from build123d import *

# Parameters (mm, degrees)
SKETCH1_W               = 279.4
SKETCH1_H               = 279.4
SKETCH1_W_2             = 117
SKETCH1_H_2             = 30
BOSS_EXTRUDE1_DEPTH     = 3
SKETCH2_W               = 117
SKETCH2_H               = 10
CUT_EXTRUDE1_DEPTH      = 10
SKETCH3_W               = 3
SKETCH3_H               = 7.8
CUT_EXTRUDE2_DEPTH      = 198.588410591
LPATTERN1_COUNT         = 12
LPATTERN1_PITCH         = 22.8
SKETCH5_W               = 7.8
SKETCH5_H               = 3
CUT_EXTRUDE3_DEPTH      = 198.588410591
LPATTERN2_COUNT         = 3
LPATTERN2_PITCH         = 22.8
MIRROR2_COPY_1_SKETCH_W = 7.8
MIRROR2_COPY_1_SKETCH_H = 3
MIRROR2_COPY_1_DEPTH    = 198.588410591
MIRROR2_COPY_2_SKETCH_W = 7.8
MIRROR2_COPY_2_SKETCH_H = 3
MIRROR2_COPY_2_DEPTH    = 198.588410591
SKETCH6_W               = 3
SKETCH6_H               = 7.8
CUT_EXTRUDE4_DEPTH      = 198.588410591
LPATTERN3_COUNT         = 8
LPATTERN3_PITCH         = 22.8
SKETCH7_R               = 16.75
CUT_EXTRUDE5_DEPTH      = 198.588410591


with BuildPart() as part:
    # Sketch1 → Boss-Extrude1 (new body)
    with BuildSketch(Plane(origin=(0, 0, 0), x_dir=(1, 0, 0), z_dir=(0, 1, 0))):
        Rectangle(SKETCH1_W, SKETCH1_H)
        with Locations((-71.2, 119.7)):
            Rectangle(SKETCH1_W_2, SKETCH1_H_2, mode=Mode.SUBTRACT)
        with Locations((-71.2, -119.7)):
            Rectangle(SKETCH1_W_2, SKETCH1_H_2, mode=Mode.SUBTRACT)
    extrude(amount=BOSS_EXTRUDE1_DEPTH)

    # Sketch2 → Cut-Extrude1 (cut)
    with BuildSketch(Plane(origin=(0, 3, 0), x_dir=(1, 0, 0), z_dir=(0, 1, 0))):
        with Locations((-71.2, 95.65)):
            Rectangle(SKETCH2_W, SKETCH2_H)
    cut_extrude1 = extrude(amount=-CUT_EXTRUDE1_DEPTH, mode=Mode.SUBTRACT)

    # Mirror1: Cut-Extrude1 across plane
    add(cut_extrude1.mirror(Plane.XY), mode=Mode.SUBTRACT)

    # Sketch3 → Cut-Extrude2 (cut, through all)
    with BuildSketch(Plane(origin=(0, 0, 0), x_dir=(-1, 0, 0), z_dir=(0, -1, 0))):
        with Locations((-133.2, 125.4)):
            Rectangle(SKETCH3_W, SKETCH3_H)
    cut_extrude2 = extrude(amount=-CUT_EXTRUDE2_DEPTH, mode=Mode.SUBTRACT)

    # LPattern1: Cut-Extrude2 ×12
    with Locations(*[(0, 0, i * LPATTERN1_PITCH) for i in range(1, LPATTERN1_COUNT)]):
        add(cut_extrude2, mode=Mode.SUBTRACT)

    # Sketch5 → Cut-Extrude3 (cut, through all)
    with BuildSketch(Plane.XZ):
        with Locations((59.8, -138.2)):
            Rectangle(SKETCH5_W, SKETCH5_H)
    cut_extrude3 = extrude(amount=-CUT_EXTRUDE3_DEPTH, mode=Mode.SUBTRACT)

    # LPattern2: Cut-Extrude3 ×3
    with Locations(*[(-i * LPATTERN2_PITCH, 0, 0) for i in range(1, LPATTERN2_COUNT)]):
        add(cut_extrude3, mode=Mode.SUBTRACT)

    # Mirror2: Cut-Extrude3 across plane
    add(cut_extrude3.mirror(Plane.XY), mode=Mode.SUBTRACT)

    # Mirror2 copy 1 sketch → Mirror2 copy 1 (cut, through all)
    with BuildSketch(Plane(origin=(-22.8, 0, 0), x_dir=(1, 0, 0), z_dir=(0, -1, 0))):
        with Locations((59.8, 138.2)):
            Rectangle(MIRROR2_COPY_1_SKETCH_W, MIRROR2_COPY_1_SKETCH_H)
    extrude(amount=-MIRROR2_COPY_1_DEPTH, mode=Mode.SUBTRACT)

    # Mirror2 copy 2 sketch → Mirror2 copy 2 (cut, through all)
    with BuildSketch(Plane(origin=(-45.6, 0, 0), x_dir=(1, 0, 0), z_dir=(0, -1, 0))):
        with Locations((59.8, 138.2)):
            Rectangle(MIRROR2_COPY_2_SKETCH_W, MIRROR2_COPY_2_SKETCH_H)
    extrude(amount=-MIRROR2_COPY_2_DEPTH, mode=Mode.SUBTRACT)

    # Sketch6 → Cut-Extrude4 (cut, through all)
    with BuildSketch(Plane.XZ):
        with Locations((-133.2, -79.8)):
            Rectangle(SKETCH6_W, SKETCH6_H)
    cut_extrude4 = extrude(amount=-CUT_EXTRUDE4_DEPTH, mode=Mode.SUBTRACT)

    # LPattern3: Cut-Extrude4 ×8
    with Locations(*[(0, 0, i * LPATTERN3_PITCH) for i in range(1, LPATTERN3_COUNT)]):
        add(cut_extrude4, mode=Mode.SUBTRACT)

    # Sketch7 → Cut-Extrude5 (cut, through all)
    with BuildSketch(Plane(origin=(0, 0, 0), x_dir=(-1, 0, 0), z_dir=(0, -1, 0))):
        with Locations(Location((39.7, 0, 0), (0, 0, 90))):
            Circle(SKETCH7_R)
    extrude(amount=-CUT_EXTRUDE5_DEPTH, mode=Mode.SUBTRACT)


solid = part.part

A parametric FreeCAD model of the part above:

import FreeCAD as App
import Part
import Sketcher

V = App.Vector

doc = App.newDocument("Part")
body = doc.addObject("PartDesign::Body", "Body")

# Sketch on XZ plane
sketch1 = body.newObject("Sketcher::SketchObject", "Sketch")
sketch1.AttachmentSupport = (doc.getObject("XZ_Plane"), [""])
sketch1.MapMode = "FlatFace"
sketch1.addGeometry([
    Part.LineSegment(V(-140, -140, 0), V(-140, 140, 0)),  # 0
    Part.LineSegment(V(-140, 140, 0), V(140, 140, 0)),  # 1
    Part.LineSegment(V(140, 140, 0), V(140, -140, 0)),  # 2
    Part.LineSegment(V(140, -140, 0), V(-140, -140, 0)),  # 3
    Part.LineSegment(V(-13, 135, 0), V(-130, 135, 0)),  # 4
    Part.LineSegment(V(-130, 135, 0), V(-130, 105, 0)),  # 5
    Part.LineSegment(V(-130, 105, 0), V(-13, 105, 0)),  # 6
    Part.LineSegment(V(-13, 105, 0), V(-13, 135, 0)),  # 7
    Part.LineSegment(V(-13, -105, 0), V(-130, -105, 0)),  # 8
    Part.LineSegment(V(-130, -105, 0), V(-130, -135, 0)),  # 9
    Part.LineSegment(V(-130, -135, 0), V(-13, -135, 0)),  # 10
    Part.LineSegment(V(-13, -135, 0), V(-13, -105, 0)),  # 11
], False)
sketch1.addConstraint([
    Sketcher.Constraint("Coincident", 0, 2, 1, 1),
    Sketcher.Constraint("Coincident", 1, 2, 2, 1),
    Sketcher.Constraint("Coincident", 2, 2, 3, 1),
    Sketcher.Constraint("Coincident", 3, 2, 0, 1),
    Sketcher.Constraint("Coincident", 4, 2, 5, 1),
    Sketcher.Constraint("Coincident", 5, 2, 6, 1),
    Sketcher.Constraint("Coincident", 6, 2, 7, 1),
    Sketcher.Constraint("Coincident", 7, 2, 4, 1),
    Sketcher.Constraint("Coincident", 8, 2, 9, 1),
    Sketcher.Constraint("Coincident", 9, 2, 10, 1),
    Sketcher.Constraint("Coincident", 10, 2, 11, 1),
    Sketcher.Constraint("Coincident", 11, 2, 8, 1),
    Sketcher.Constraint("Vertical", 0),
    Sketcher.Constraint("Horizontal", 1),
    Sketcher.Constraint("Vertical", 2),
    Sketcher.Constraint("Horizontal", 3),
    Sketcher.Constraint("Horizontal", 4),
    Sketcher.Constraint("Vertical", 5),
    Sketcher.Constraint("Horizontal", 6),
    Sketcher.Constraint("Vertical", 7),
    Sketcher.Constraint("Horizontal", 8),
    Sketcher.Constraint("Vertical", 9),
    Sketcher.Constraint("Horizontal", 10),
    Sketcher.Constraint("Vertical", 11),
    Sketcher.Constraint("Symmetric", 0, 2, 2, 2, -1, 1),
    Sketcher.Constraint("Symmetric", 5, 2, 8, 2, -1),
    Sketcher.Constraint("Symmetric", 7, 2, 10, 2, -1),
    Sketcher.Constraint("Equal", 3, 0),
    Sketcher.Constraint("DistanceX", 4, 2, 4, 1, 117.0),
    Sketcher.Constraint("DistanceY", 5, 2, 5, 1, 30.0),
    Sketcher.Constraint("DistanceX", 1, 1, 1, 2, 279.4),
    Sketcher.Constraint("DistanceX", 0, 2, 4, 2, 10.0),
    Sketcher.Constraint("DistanceY", 4, 2, 0, 2, 5.0),
])
pad1 = body.newObject("PartDesign::Pad", "Pad")
pad1.Profile = sketch1
pad1.Length = 3
pad1.Reversed = True

# Sketch on XZ plane
sketch2 = body.newObject("Sketcher::SketchObject", "Sketch001")
sketch2.AttachmentSupport = (doc.getObject("XZ_Plane"), [""])
sketch2.MapMode = "FlatFace"
sketch2.AttachmentOffset = App.Placement(V(0, 0, -3), App.Rotation())
sketch2.addGeometry([
    Part.LineSegment(V(-130, -101, 0), V(-130, -91, 0)),
    Part.LineSegment(V(-130, -91, 0), V(-13, -91, 0)),
    Part.LineSegment(V(-13, -91, 0), V(-13, -101, 0)),
    Part.LineSegment(V(-13, -101, 0), V(-130, -101, 0)),
], False)
sketch2.addConstraint([
    Sketcher.Constraint("Coincident", 0, 2, 1, 1),
    Sketcher.Constraint("Coincident", 1, 2, 2, 1),
    Sketcher.Constraint("Coincident", 2, 2, 3, 1),
    Sketcher.Constraint("Coincident", 3, 2, 0, 1),
    Sketcher.Constraint("Vertical", 0),
    Sketcher.Constraint("Horizontal", 1),
    Sketcher.Constraint("Vertical", 2),
    Sketcher.Constraint("Horizontal", 3),
    Sketcher.Constraint("DistanceX", 1, 1, 1, 2, 117.0),
    Sketcher.Constraint("DistanceY", 0, 1, 0, 2, 10.0),
    Sketcher.Constraint("DistanceX", 0, 2, -1, 1, 129.7),
    Sketcher.Constraint("DistanceY", 0, 2, -1, 1, 90.65),
])
pocket1 = body.newObject("PartDesign::Pocket", "Pocket")
pocket1.Profile = sketch2
pocket1.Length = 10
pocket1.Reversed = True
doc.recompute()

mirrored = body.newObject("PartDesign::Mirrored", "Mirrored")
mirrored.Originals = [pocket1]
mirrored.MirrorPlane = (doc.getObject("XY_Plane"), [""])
body.Tip = mirrored

# Sketch on XZ plane
sketch3 = body.newObject("Sketcher::SketchObject", "Sketch002")
sketch3.AttachmentSupport = (doc.getObject("XZ_Plane"), [""])
sketch3.MapMode = "FlatFace"
sketch3.addGeometry([
    Part.LineSegment(V(134.7, -129.3, 0), V(134.7, -121.5, 0)),
    Part.LineSegment(V(134.7, -121.5, 0), V(131.7, -121.5, 0)),
    Part.LineSegment(V(131.7, -121.5, 0), V(131.7, -129.3, 0)),
    Part.LineSegment(V(131.7, -129.3, 0), V(134.7, -129.3, 0)),
], False)
sketch3.addConstraint([
    Sketcher.Constraint("Coincident", 0, 2, 1, 1),
    Sketcher.Constraint("Coincident", 1, 2, 2, 1),
    Sketcher.Constraint("Coincident", 2, 2, 3, 1),
    Sketcher.Constraint("Coincident", 3, 2, 0, 1),
    Sketcher.Constraint("Vertical", 0),
    Sketcher.Constraint("Horizontal", 1),
    Sketcher.Constraint("Vertical", 2),
    Sketcher.Constraint("Horizontal", 3),
    Sketcher.Constraint("DistanceX", 1, 2, 1, 1, 3.0),
    Sketcher.Constraint("DistanceY", 0, 1, 0, 2, 7.8),
    Sketcher.Constraint("DistanceX", -1, 1, 0, 2, 134.7),
    Sketcher.Constraint("DistanceY", 0, 2, -1, 1, 121.5),
])
pocket2 = body.newObject("PartDesign::Pocket", "Pocket001")
pocket2.Profile = sketch3
pocket2.Type = "ThroughAll"
doc.recompute()

linearpattern = body.newObject("PartDesign::LinearPattern", "LinearPattern")
linearpattern.Originals = [pocket2]
linearpattern.Direction = (doc.getObject("Z_Axis"), [""])
linearpattern.Mode = "offset"
linearpattern.Offset = 22.8
linearpattern.Occurrences = 12
body.Tip = linearpattern

# Sketch on XZ plane
sketch4 = body.newObject("Sketcher::SketchObject", "Sketch003")
sketch4.AttachmentSupport = (doc.getObject("XZ_Plane"), [""])
sketch4.MapMode = "FlatFace"
sketch4.addGeometry([
    Part.LineSegment(V(55.9, -136.7, 0), V(55.9, -139.7, 0)),
    Part.LineSegment(V(55.9, -139.7, 0), V(63.7, -139.7, 0)),
    Part.LineSegment(V(63.7, -139.7, 0), V(63.7, -136.7, 0)),
    Part.LineSegment(V(63.7, -136.7, 0), V(55.9, -136.7, 0)),
], False)
sketch4.addConstraint([
    Sketcher.Constraint("Coincident", 0, 2, 1, 1),
    Sketcher.Constraint("Coincident", 1, 2, 2, 1),
    Sketcher.Constraint("Coincident", 2, 2, 3, 1),
    Sketcher.Constraint("Coincident", 3, 2, 0, 1),
    Sketcher.Constraint("Vertical", 0),
    Sketcher.Constraint("Horizontal", 1),
    Sketcher.Constraint("Vertical", 2),
    Sketcher.Constraint("Horizontal", 3),
    Sketcher.Constraint("DistanceY", 0, 2, 0, 1, 3.0),
    Sketcher.Constraint("DistanceX", 1, 1, 1, 2, 7.8),
    Sketcher.Constraint("DistanceX", -1, 1, 0, 2, 55.9),
    Sketcher.Constraint("DistanceY", 0, 2, -1, 1, 139.7),
])
pocket3 = body.newObject("PartDesign::Pocket", "Pocket002")
pocket3.Profile = sketch4
pocket3.Type = "ThroughAll"
doc.recompute()

linearpattern2 = body.newObject("PartDesign::LinearPattern", "LinearPattern001")
linearpattern2.Originals = [pocket3]
linearpattern2.Direction = (doc.getObject("X_Axis"), [""])
linearpattern2.Mode = "offset"
linearpattern2.Offset = 22.8
linearpattern2.Occurrences = 3
linearpattern2.Reversed = True
body.Tip = linearpattern2
doc.recompute()

mirrored2 = body.newObject("PartDesign::Mirrored", "Mirrored001")
mirrored2.Originals = [pocket3]
mirrored2.MirrorPlane = (doc.getObject("XY_Plane"), [""])
body.Tip = mirrored2

# Sketch on XZ plane
sketch5 = body.newObject("Sketcher::SketchObject", "Sketch004")
sketch5.AttachmentSupport = (doc.getObject("XZ_Plane"), [""])
sketch5.MapMode = "FlatFace"
sketch5.addGeometry([
    Part.LineSegment(V(33.1, 139.7, 0), V(33.1, 136.7, 0)),
    Part.LineSegment(V(33.1, 136.7, 0), V(40.9, 136.7, 0)),
    Part.LineSegment(V(40.9, 136.7, 0), V(40.9, 139.7, 0)),
    Part.LineSegment(V(40.9, 139.7, 0), V(33.1, 139.7, 0)),
], False)
sketch5.addConstraint([
    Sketcher.Constraint("Coincident", 0, 2, 1, 1),
    Sketcher.Constraint("Coincident", 1, 2, 2, 1),
    Sketcher.Constraint("Coincident", 2, 2, 3, 1),
    Sketcher.Constraint("Coincident", 3, 2, 0, 1),
    Sketcher.Constraint("Vertical", 0),
    Sketcher.Constraint("Horizontal", 1),
    Sketcher.Constraint("Vertical", 2),
    Sketcher.Constraint("Horizontal", 3),
    Sketcher.Constraint("DistanceY", 0, 2, 0, 1, 3.0),
    Sketcher.Constraint("DistanceX", 1, 1, 1, 2, 7.8),
    Sketcher.Constraint("DistanceX", -1, 1, 0, 2, 33.1),
    Sketcher.Constraint("DistanceY", -1, 1, 0, 2, 136.7),
])
pocket4 = body.newObject("PartDesign::Pocket", "Pocket003")
pocket4.Profile = sketch5
pocket4.Type = "ThroughAll"

# Sketch on XZ plane
sketch6 = body.newObject("Sketcher::SketchObject", "Sketch005")
sketch6.AttachmentSupport = (doc.getObject("XZ_Plane"), [""])
sketch6.MapMode = "FlatFace"
sketch6.addGeometry([
    Part.LineSegment(V(10.3, 139.7, 0), V(10.3, 136.7, 0)),
    Part.LineSegment(V(10.3, 136.7, 0), V(18.1, 136.7, 0)),
    Part.LineSegment(V(18.1, 136.7, 0), V(18.1, 139.7, 0)),
    Part.LineSegment(V(18.1, 139.7, 0), V(10.3, 139.7, 0)),
], False)
sketch6.addConstraint([
    Sketcher.Constraint("Coincident", 0, 2, 1, 1),
    Sketcher.Constraint("Coincident", 1, 2, 2, 1),
    Sketcher.Constraint("Coincident", 2, 2, 3, 1),
    Sketcher.Constraint("Coincident", 3, 2, 0, 1),
    Sketcher.Constraint("Vertical", 0),
    Sketcher.Constraint("Horizontal", 1),
    Sketcher.Constraint("Vertical", 2),
    Sketcher.Constraint("Horizontal", 3),
    Sketcher.Constraint("DistanceY", 0, 2, 0, 1, 3.0),
    Sketcher.Constraint("DistanceX", 1, 1, 1, 2, 7.8),
    Sketcher.Constraint("DistanceX", -1, 1, 0, 2, 10.3),
    Sketcher.Constraint("DistanceY", -1, 1, 0, 2, 136.7),
])
pocket5 = body.newObject("PartDesign::Pocket", "Pocket004")
pocket5.Profile = sketch6
pocket5.Type = "ThroughAll"

# Sketch on XZ plane
sketch7 = body.newObject("Sketcher::SketchObject", "Sketch006")
sketch7.AttachmentSupport = (doc.getObject("XZ_Plane"), [""])
sketch7.MapMode = "FlatFace"
sketch7.addGeometry([
    Part.LineSegment(V(-134.7, -75.9, 0), V(-134.7, -83.7, 0)),
    Part.LineSegment(V(-134.7, -83.7, 0), V(-131.7, -83.7, 0)),
    Part.LineSegment(V(-131.7, -83.7, 0), V(-131.7, -75.9, 0)),
    Part.LineSegment(V(-131.7, -75.9, 0), V(-134.7, -75.9, 0)),
], False)
sketch7.addConstraint([
    Sketcher.Constraint("Coincident", 0, 2, 1, 1),
    Sketcher.Constraint("Coincident", 1, 2, 2, 1),
    Sketcher.Constraint("Coincident", 2, 2, 3, 1),
    Sketcher.Constraint("Coincident", 3, 2, 0, 1),
    Sketcher.Constraint("Vertical", 0),
    Sketcher.Constraint("Horizontal", 1),
    Sketcher.Constraint("Vertical", 2),
    Sketcher.Constraint("Horizontal", 3),
    Sketcher.Constraint("DistanceX", 1, 1, 1, 2, 3.0),
    Sketcher.Constraint("DistanceY", 0, 2, 0, 1, 7.8),
    Sketcher.Constraint("DistanceX", 0, 2, -1, 1, 134.7),
    Sketcher.Constraint("DistanceY", 0, 2, -1, 1, 83.7),
])
pocket6 = body.newObject("PartDesign::Pocket", "Pocket005")
pocket6.Profile = sketch7
pocket6.Type = "ThroughAll"
doc.recompute()

linearpattern3 = body.newObject("PartDesign::LinearPattern", "LinearPattern002")
linearpattern3.Originals = [pocket6]
linearpattern3.Direction = (doc.getObject("Z_Axis"), [""])
linearpattern3.Mode = "offset"
linearpattern3.Offset = 22.8
linearpattern3.Occurrences = 8
body.Tip = linearpattern3

# Sketch on XZ plane
sketch8 = body.newObject("Sketcher::SketchObject", "Sketch007")
sketch8.AttachmentSupport = (doc.getObject("XZ_Plane"), [""])
sketch8.MapMode = "FlatFace"
sketch8.addGeometry(Part.Circle(V(-40, 0, 0), V(0, 0, 1), 17), False)
sketch8.addConstraint([
    Sketcher.Constraint("PointOnObject", 0, 3, -1),
    Sketcher.Constraint("Diameter", 0, 33.5),
    Sketcher.Constraint("DistanceX", 0, 3, -1, 1, 39.7),
])
pocket7 = body.newObject("PartDesign::Pocket", "Pocket006")
pocket7.Profile = sketch8
pocket7.Type = "ThroughAll"

doc.recompute()
